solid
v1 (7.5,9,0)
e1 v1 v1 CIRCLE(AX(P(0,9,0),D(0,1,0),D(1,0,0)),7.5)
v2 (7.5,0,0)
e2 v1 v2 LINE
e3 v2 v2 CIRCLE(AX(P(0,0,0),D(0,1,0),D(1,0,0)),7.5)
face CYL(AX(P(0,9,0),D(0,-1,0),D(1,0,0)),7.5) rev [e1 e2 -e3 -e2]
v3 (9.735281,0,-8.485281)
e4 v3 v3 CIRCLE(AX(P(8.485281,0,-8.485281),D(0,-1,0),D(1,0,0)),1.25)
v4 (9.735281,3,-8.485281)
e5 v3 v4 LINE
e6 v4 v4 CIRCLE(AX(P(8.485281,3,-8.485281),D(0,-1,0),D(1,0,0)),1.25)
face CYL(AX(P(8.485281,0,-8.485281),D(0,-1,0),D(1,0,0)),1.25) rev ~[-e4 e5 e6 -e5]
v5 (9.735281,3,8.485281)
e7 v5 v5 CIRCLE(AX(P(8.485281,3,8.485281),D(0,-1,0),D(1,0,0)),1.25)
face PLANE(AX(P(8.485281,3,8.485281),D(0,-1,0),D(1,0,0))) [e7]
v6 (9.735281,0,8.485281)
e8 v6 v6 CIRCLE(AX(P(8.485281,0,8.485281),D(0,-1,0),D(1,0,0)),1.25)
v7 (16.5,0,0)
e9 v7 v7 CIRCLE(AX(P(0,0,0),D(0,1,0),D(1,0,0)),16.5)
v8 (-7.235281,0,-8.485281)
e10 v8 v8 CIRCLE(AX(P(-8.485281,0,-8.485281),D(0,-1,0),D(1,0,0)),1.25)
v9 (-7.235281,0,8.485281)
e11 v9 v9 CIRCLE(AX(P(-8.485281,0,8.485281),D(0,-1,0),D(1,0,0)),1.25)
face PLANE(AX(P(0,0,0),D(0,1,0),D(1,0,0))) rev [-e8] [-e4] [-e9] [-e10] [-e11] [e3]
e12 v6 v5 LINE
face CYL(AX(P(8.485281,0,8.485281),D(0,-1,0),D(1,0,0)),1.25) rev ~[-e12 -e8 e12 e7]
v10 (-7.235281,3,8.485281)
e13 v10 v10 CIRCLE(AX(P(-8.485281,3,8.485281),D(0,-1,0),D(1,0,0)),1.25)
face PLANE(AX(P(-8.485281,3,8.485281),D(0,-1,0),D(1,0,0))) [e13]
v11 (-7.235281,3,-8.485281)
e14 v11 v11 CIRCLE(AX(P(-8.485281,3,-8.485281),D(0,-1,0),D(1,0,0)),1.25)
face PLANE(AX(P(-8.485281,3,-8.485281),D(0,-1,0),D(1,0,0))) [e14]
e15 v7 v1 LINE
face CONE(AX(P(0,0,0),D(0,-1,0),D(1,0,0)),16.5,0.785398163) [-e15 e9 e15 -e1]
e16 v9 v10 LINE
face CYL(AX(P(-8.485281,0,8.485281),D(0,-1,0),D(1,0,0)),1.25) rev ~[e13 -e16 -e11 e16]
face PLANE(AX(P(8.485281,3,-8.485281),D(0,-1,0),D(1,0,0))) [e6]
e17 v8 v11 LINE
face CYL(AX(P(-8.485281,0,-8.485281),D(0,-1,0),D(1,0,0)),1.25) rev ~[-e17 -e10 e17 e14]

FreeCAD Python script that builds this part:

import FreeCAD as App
import Part
import Sketcher

doc = App.newDocument("Part")
body = doc.addObject("PartDesign::Body", "Body")

sketch1 = body.newObject("Sketcher::SketchObject", "Sketch")
sketch1.AttachmentSupport = (doc.getObject("XY_Plane"), [""])
sketch1.MapMode = "FlatFace"
sketch1.addGeometry(Part.LineSegment(App.Vector(8, 0, 0), App.Vector(16, 0, 0)), False)
sketch1.addGeometry(Part.LineSegment(App.Vector(16, 0, 0), App.Vector(8, 9, 0)), False)
sketch1.addGeometry(Part.LineSegment(App.Vector(8, 9, 0), App.Vector(8, 0, 0)), False)
sketch1.addConstraint(Sketcher.Constraint("Coincident", 0, 2, 1, 1))
sketch1.addConstraint(Sketcher.Constraint("Coincident", 1, 2, 2, 1))
sketch1.addConstraint(Sketcher.Constraint("Coincident", 2, 2, 0, 1))
sketch1.addConstraint(Sketcher.Constraint("Horizontal", 0))
sketch1.addConstraint(Sketcher.Constraint("Vertical", 2))
sketch1.addConstraint(Sketcher.Constraint("PointOnObject", 0, 2, -1))
sketch1.addConstraint(Sketcher.Constraint("Equal", 0, 2))
sketch1.addConstraint(Sketcher.Constraint("DistanceX", 0, 1, 0, 2, 9.0))
sketch1.addConstraint(Sketcher.Constraint("DistanceX", -1, 1, 0, 2, 16.5))
revolution = body.newObject("PartDesign::Revolution", "Revolution")
revolution.Profile = sketch1
revolution.ReferenceAxis = (sketch1, ["V_Axis"])
revolution.Angle = 360

sketch2 = body.newObject("Sketcher::SketchObject", "Sketch001")
sketch2.AttachmentSupport = (doc.getObject("XZ_Plane"), [""])
sketch2.MapMode = "FlatFace"
sketch2.addGeometry(Part.Circle(App.Vector(-8.5, 8.5, 0), App.Vector(0, 0, 1), 1.2), False)
sketch2.addGeometry(Part.Circle(App.Vector(8.5, 8.5, 0), App.Vector(0, 0, 1), 1.2), False)
sketch2.addGeometry(Part.Circle(App.Vector(8.5, -8.5, 0), App.Vector(0, 0, 1), 1.2), False)
sketch2.addGeometry(Part.Circle(App.Vector(-8.5, -8.5, 0), App.Vector(0, 0, 1), 1.2), False)
sketch2.addConstraint(Sketcher.Constraint("Equal", 0, 1))
sketch2.addConstraint(Sketcher.Constraint("Equal", 1, 2))
sketch2.addConstraint(Sketcher.Constraint("Equal", 2, 3))
sketch2.addConstraint(Sketcher.Constraint("Symmetric", 0, 3, 2, 3, -1, 1))
sketch2.addConstraint(Sketcher.Constraint("Symmetric", 1, 3, 3, 3, -1, 1))
sketch2.addConstraint(Sketcher.Constraint("Symmetric", 0, 3, 1, 3, -2))
sketch2.addConstraint(Sketcher.Constraint("Diameter", 0, 2.5))
sketch2.addConstraint(Sketcher.Constraint("DistanceX", 0, 3, -1, 1, 8.485281))
sketch2.addConstraint(Sketcher.Constraint("DistanceY", -1, 1, 0, 3, 8.485281))
pocket1 = body.newObject("PartDesign::Pocket", "Pocket")
pocket1.Profile = sketch2
pocket1.Length = 3

doc.recompute()
